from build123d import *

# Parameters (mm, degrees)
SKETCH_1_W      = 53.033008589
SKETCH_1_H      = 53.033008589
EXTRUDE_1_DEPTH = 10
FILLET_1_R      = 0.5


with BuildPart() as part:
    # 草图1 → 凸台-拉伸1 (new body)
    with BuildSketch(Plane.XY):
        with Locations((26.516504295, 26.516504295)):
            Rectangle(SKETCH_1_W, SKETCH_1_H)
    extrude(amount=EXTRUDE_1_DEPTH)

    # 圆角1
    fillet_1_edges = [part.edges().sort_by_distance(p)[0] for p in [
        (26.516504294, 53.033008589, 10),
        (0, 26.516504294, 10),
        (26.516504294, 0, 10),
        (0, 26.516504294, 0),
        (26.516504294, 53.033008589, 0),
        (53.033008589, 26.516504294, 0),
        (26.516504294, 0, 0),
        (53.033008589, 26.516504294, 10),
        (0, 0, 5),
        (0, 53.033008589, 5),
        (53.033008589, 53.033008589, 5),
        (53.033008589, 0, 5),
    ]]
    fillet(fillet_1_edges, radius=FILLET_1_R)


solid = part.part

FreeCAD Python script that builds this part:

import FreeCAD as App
import Part
import Sketcher

V = App.Vector
Q = App.Units.Quantity

doc = App.newDocument("Part")
body = doc.addObject("PartDesign::Body", "Body")

# Sketch on XY plane
sketch1 = body.newObject("Sketcher::SketchObject", "Sketch")
sketch1.AttachmentSupport = (doc.getObject("XY_Plane"), [""])
sketch1.MapMode = "FlatFace"
sketch1.addGeometry([
    Part.LineSegment(V(0, 53.033009, 0), V(0, 0, 0)),
    Part.LineSegment(V(0, 0, 0), V(53.033009, 0, 0)),
    Part.LineSegment(V(53.033009, 0, 0), V(53.033009, 53.033009, 0)),
    Part.LineSegment(V(53.033009, 53.033009, 0), V(0, 53.033009, 0)),
], False)
sketch1.addConstraint([
    Sketcher.Constraint("Coincident", 0, 2, 1, 1),
    Sketcher.Constraint("Coincident", 1, 2, 2, 1),
    Sketcher.Constraint("Coincident", 2, 2, 3, 1),
    Sketcher.Constraint("Coincident", 3, 2, 0, 1),
    Sketcher.Constraint("Vertical", 0),
    Sketcher.Constraint("Horizontal", 1),
    Sketcher.Constraint("Vertical", 2),
    Sketcher.Constraint("Horizontal", 3),
    Sketcher.Constraint("Coincident", 0, 2, -1, 1),
    Sketcher.Constraint("Equal", 3, 0),
    Sketcher.Constraint("DistanceX", 1, 1, 1, 2, Q("53.033009 mm")),
])
pad1 = body.newObject("PartDesign::Pad", "Pad")
pad1.Profile = sketch1
pad1.Length = 10
doc.recompute()

fillet = body.newObject("PartDesign::Fillet", "Fillet")
fillet.Base = (pad1, ["Edge1"])
fillet.UseAllEdges = True
fillet.Radius = 0.5

doc.recompute()
